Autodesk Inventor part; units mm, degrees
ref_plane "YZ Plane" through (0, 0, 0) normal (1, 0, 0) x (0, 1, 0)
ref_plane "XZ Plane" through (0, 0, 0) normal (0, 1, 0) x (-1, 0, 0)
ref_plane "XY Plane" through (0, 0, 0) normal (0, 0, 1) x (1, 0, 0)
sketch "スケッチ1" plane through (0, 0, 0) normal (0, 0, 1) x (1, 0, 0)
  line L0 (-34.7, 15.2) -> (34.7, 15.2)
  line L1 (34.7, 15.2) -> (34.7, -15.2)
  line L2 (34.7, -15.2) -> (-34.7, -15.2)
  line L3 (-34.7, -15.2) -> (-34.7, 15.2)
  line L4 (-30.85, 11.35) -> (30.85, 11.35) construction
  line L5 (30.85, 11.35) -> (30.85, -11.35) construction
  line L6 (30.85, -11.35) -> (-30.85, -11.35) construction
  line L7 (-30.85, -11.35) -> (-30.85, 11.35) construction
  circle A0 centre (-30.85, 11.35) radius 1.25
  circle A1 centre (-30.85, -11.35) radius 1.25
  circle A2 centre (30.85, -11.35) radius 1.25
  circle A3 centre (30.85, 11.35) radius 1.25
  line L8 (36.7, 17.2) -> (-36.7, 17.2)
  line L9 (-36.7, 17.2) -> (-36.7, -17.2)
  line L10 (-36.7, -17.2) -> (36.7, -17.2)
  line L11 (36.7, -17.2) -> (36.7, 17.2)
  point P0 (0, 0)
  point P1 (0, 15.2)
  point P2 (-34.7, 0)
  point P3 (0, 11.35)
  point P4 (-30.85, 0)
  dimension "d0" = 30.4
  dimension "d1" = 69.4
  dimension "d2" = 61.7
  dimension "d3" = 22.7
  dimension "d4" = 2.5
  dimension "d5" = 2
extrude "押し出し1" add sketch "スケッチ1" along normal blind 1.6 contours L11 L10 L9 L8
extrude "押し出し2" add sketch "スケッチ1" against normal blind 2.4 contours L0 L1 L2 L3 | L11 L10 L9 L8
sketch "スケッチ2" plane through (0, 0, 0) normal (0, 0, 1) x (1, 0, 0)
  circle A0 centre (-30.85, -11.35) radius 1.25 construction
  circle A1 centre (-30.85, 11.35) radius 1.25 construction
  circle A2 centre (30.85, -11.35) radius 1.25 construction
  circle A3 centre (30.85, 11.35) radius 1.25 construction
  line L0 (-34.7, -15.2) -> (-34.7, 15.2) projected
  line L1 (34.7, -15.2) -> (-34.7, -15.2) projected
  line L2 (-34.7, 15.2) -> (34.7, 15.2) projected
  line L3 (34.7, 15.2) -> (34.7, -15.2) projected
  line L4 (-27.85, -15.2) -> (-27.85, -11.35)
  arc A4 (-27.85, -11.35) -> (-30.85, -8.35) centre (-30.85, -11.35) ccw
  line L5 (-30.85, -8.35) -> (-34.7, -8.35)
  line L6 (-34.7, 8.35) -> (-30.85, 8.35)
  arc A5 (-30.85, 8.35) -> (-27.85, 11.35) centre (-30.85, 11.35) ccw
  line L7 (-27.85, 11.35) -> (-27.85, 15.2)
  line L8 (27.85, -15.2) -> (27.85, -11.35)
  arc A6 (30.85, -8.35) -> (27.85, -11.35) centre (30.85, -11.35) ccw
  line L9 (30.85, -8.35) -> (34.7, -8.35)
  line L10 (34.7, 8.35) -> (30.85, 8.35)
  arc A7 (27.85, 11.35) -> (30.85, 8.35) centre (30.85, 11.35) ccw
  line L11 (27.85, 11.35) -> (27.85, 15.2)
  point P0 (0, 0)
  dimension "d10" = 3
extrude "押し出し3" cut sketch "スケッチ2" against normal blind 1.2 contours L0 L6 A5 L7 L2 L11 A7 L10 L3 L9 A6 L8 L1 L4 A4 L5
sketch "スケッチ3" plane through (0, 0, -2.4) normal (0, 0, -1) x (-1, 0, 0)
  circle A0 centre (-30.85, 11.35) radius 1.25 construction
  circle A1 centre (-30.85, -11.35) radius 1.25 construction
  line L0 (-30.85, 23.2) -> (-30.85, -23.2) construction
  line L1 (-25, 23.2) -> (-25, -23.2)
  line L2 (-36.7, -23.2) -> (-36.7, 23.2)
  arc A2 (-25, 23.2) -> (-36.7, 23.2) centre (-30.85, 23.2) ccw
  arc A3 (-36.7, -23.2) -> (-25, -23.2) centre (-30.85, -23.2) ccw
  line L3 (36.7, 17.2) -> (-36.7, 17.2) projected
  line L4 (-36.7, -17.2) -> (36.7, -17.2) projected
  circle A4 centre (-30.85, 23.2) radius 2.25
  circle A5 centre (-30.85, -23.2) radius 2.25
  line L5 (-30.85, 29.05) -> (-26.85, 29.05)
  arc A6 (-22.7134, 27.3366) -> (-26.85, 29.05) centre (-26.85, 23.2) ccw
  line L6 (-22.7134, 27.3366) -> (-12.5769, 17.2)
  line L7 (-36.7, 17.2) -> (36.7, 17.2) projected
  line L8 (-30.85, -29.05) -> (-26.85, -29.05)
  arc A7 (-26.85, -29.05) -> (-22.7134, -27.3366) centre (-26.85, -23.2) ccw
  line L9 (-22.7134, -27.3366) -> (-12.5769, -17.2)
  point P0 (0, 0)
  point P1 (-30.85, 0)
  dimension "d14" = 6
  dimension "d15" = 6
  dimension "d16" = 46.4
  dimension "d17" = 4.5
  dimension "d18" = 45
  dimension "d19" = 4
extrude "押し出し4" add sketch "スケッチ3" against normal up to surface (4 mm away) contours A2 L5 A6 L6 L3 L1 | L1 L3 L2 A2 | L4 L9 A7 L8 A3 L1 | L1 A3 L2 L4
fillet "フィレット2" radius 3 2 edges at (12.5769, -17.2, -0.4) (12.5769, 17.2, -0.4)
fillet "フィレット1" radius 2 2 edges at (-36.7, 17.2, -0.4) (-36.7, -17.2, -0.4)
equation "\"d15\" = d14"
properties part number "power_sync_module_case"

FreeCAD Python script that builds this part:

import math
import FreeCAD as App
import Part
import Sketcher
from FreeCAD import Vector


def edges_at(feature, points):
    """Names of the edges that pass closest to the given points."""
    edges = feature.Shape.Edges
    near = lambda p: min(range(len(edges)), key=lambda i: edges[i].distToShape(Part.Vertex(*p))[0])
    return sorted({f"Edge{near(p) + 1}" for p in points})


def add_polygon(sketch, points):
    """Adds a closed chain of lines whose ends are joined by coincident constraints."""
    first, n = sketch.GeometryCount, len(points)
    for a, b in zip(points, points[1:] + points[:1]):
        sketch.addGeometry(Part.LineSegment(App.Vector(*a, 0), App.Vector(*b, 0)), False)
    for i in range(n):
        sketch.addConstraint(Sketcher.Constraint("Coincident", first + i, 2, first + (i + 1) % n, 1))

doc = App.newDocument("Part")
body = doc.addObject("PartDesign::Body", "Body")

# Sketch on XY plane
sketch1 = body.newObject("Sketcher::SketchObject", "Sketch")
sketch1.AttachmentSupport = (doc.getObject("XY_Plane"), [""])
sketch1.MapMode = "FlatFace"
add_polygon(sketch1, [(37, -17), (37, 17), (-37, 17), (-37, -17)])  # lines 0-3
add_polygon(sketch1, [(-35, -15), (-35, 15), (35, 15), (35, -15)])  # lines 4-7
sketch1.addConstraint(Sketcher.Constraint("Vertical", 0))
sketch1.addConstraint(Sketcher.Constraint("Horizontal", 1))
sketch1.addConstraint(Sketcher.Constraint("Vertical", 2))
sketch1.addConstraint(Sketcher.Constraint("Horizontal", 3))
sketch1.addConstraint(Sketcher.Constraint("Vertical", 4))
sketch1.addConstraint(Sketcher.Constraint("Horizontal", 5))
sketch1.addConstraint(Sketcher.Constraint("Vertical", 6))
sketch1.addConstraint(Sketcher.Constraint("Horizontal", 7))
sketch1.addConstraint(Sketcher.Constraint("Symmetric", 0, 2, 2, 2, -1, 1))
sketch1.addConstraint(Sketcher.Constraint("Symmetric", 4, 2, 6, 2, -1, 1))
sketch1.addConstraint(Sketcher.Constraint("DistanceX", 5, 1, 5, 2, 69.4))
sketch1.addConstraint(Sketcher.Constraint("DistanceY", 4, 1, 4, 2, 30.4))
sketch1.addConstraint(Sketcher.Constraint("DistanceX", 1, 2, 4, 2, 2.0))
sketch1.addConstraint(Sketcher.Constraint("DistanceY", 4, 2, 1, 2, 2.0))
pad1 = body.newObject("PartDesign::Pad", "Pad")
pad1.Profile = sketch1
pad1.Length = 1.6

# Sketch on XY plane
sketch2 = body.newObject("Sketcher::SketchObject", "Sketch001")
sketch2.AttachmentSupport = (doc.getObject("XY_Plane"), [""])
sketch2.MapMode = "FlatFace"
add_polygon(sketch2, [(36.7, -17.2), (36.7, 17.2), (-36.7, 17.2), (-36.7, -17.2)])  # lines 0-3
sketch2.addGeometry(Part.Circle(Vector(-30.9, -11.3, 0), Vector(0, 0, 1), 1.2), False)  # 4
sketch2.addGeometry(Part.Circle(Vector(30.9, -11.3, 0), Vector(0, 0, 1), 1.2), False)  # 5
sketch2.addGeometry(Part.Circle(Vector(-30.9, 11.3, 0), Vector(0, 0, 1), 1.2), False)  # 6
sketch2.addGeometry(Part.Circle(Vector(30.9, 11.3, 0), Vector(0, 0, 1), 1.2), False)  # 7
sketch2.addConstraint(Sketcher.Constraint("Vertical", 0))
sketch2.addConstraint(Sketcher.Constraint("Horizontal", 1))
sketch2.addConstraint(Sketcher.Constraint("Vertical", 2))
sketch2.addConstraint(Sketcher.Constraint("Horizontal", 3))
sketch2.addConstraint(Sketcher.Constraint("Equal", 4, 5))
sketch2.addConstraint(Sketcher.Constraint("Equal", 5, 6))
sketch2.addConstraint(Sketcher.Constraint("Equal", 6, 7))
sketch2.addConstraint(Sketcher.Constraint("Symmetric", 5, 3, 6, 3, -1, 1))
sketch2.addConstraint(Sketcher.Constraint("Symmetric", 4, 3, 7, 3, -1, 1))
sketch2.addConstraint(Sketcher.Constraint("Symmetric", 0, 2, 2, 2, -1, 1))
sketch2.addConstraint(Sketcher.Constraint("Symmetric", 4, 3, 5, 3, -2))
sketch2.addConstraint(Sketcher.Constraint("Diameter", 4, 2.5))
sketch2.addConstraint(Sketcher.Constraint("DistanceX", 4, 3, 5, 3, 61.7))
sketch2.addConstraint(Sketcher.Constraint("DistanceY", 4, 3, 6, 3, 22.7))
sketch2.addConstraint(Sketcher.Constraint("DistanceX", 1, 2, 1, 1, 73.4))
sketch2.addConstraint(Sketcher.Constraint("DistanceY", 0, 1, 0, 2, 34.4))
pad2 = body.newObject("PartDesign::Pad", "Pad001")
pad2.Profile = sketch2
pad2.Length = 2.4
pad2.Reversed = True

# Sketch on XY plane
sketch3 = body.newObject("Sketcher::SketchObject", "Sketch002")
sketch3.AttachmentSupport = (doc.getObject("XY_Plane"), [""])
sketch3.MapMode = "FlatFace"
sketch3.addGeometry(Part.LineSegment(Vector(-34.7, 8.3, 0), Vector(-34.7, -8.3, 0)), False)
sketch3.addGeometry(Part.LineSegment(Vector(-34.7, -8.3, 0), Vector(-30.9, -8.3, 0)), False)
sketch3.addGeometry(Part.ArcOfCircle(Part.Circle(Vector(-30.9, -11.3, 0), Vector(0, 0, 1), 3), math.radians(0), math.radians(90)), False)
sketch3.addGeometry(Part.LineSegment(Vector(-27.9, -11.3, 0), Vector(-27.9, -15.2, 0)), False)
sketch3.addGeometry(Part.LineSegment(Vector(-27.9, -15.2, 0), Vector(27.9, -15.2, 0)), False)
sketch3.addGeometry(Part.LineSegment(Vector(27.9, -15.2, 0), Vector(27.9, -11.3, 0)), False)
sketch3.addGeometry(Part.ArcOfCircle(Part.Circle(Vector(30.9, -11.3, 0), Vector(0, 0, 1), 3), math.radians(90), math.radians(180)), False)
sketch3.addGeometry(Part.LineSegment(Vector(30.9, -8.3, 0), Vector(34.7, -8.3, 0)), False)
sketch3.addGeometry(Part.LineSegment(Vector(34.7, -8.3, 0), Vector(34.7, 8.3, 0)), False)
sketch3.addGeometry(Part.LineSegment(Vector(34.7, 8.3, 0), Vector(30.9, 8.3, 0)), False)
sketch3.addGeometry(Part.ArcOfCircle(Part.Circle(Vector(30.9, 11.3, 0), Vector(0, 0, 1), 3), math.radians(180), math.radians(270)), False)
sketch3.addGeometry(Part.LineSegment(Vector(27.9, 11.3, 0), Vector(27.9, 15.2, 0)), False)
sketch3.addGeometry(Part.LineSegment(Vector(27.9, 15.2, 0), Vector(-27.9, 15.2, 0)), False)
sketch3.addGeometry(Part.LineSegment(Vector(-27.9, 15.2, 0), Vector(-27.9, 11.3, 0)), False)
sketch3.addGeometry(Part.ArcOfCircle(Part.Circle(Vector(-30.9, 11.3, 0), Vector(0, 0, 1), 3), math.radians(-90), math.radians(0)), False)
sketch3.addGeometry(Part.LineSegment(Vector(-30.9, 8.3, 0), Vector(-34.7, 8.3, 0)), False)
sketch3.addConstraint(Sketcher.Constraint("Coincident", 0, 2, 1, 1))
sketch3.addConstraint(Sketcher.Constraint("Tangent", 1, 2, 2, 2))
sketch3.addConstraint(Sketcher.Constraint("Tangent", 2, 1, 3, 1))
sketch3.addConstraint(Sketcher.Constraint("Coincident", 3, 2, 4, 1))
sketch3.addConstraint(Sketcher.Constraint("Coincident", 4, 2, 5, 1))
sketch3.addConstraint(Sketcher.Constraint("Tangent", 5, 2, 6, 2))
sketch3.addConstraint(Sketcher.Constraint("Tangent", 6, 1, 7, 1))
sketch3.addConstraint(Sketcher.Constraint("Coincident", 7, 2, 8, 1))
sketch3.addConstraint(Sketcher.Constraint("Coincident", 8, 2, 9, 1))
sketch3.addConstraint(Sketcher.Constraint("Tangent", 9, 2, 10, 2))
sketch3.addConstraint(Sketcher.Constraint("Tangent", 10, 1, 11, 1))
sketch3.addConstraint(Sketcher.Constraint("Coincident", 11, 2, 12, 1))
sketch3.addConstraint(Sketcher.Constraint("Coincident", 12, 2, 13, 1))
sketch3.addConstraint(Sketcher.Constraint("Tangent", 13, 2, 14, 2))
sketch3.addConstraint(Sketcher.Constraint("Tangent", 14, 1, 15, 1))
sketch3.addConstraint(Sketcher.Constraint("Coincident", 15, 2, 0, 1))
sketch3.addConstraint(Sketcher.Constraint("Vertical", 0))
sketch3.addConstraint(Sketcher.Constraint("Horizontal", 1))
sketch3.addConstraint(Sketcher.Constraint("Vertical", 3))
sketch3.addConstraint(Sketcher.Constraint("Horizontal", 4))
sketch3.addConstraint(Sketcher.Constraint("Vertical", 5))
sketch3.addConstraint(Sketcher.Constraint("Horizontal", 7))
sketch3.addConstraint(Sketcher.Constraint("Vertical", 8))
sketch3.addConstraint(Sketcher.Constraint("Horizontal", 9))
sketch3.addConstraint(Sketcher.Constraint("Vertical", 11))
sketch3.addConstraint(Sketcher.Constraint("Horizontal", 12))
sketch3.addConstraint(Sketcher.Constraint("Vertical", 13))
sketch3.addConstraint(Sketcher.Constraint("Horizontal", 15))
sketch3.addConstraint(Sketcher.Constraint("Equal", 2, 6))
sketch3.addConstraint(Sketcher.Constraint("Equal", 6, 10))
sketch3.addConstraint(Sketcher.Constraint("Equal", 10, 14))
sketch3.addConstraint(Sketcher.Constraint("Symmetric", 2, 3, 10, 3, -1, 1))
sketch3.addConstraint(Sketcher.Constraint("Symmetric", 6, 3, 14, 3, -1, 1))
sketch3.addConstraint(Sketcher.Constraint("Symmetric", 2, 3, 6, 3, -2))
sketch3.addConstraint(Sketcher.Constraint("Equal", 1, 7))
sketch3.addConstraint(Sketcher.Constraint("Equal", 15, 3))
sketch3.addConstraint(Sketcher.Constraint("Equal", 5, 11))
sketch3.addConstraint(Sketcher.Constraint("Radius", 2, 3.0))
sketch3.addConstraint(Sketcher.Constraint("DistanceX", 4, 1, 4, 2, 55.7))
sketch3.addConstraint(Sketcher.Constraint("DistanceY", 0, 2, 0, 1, 16.7))
sketch3.addConstraint(Sketcher.Constraint("DistanceX", 1, 1, 1, 2, 3.85))
pocket1 = body.newObject("PartDesign::Pocket", "Pocket")
pocket1.Profile = sketch3
pocket1.Length = 1.2

# Sketch on XY plane
sketch4 = body.newObject("Sketcher::SketchObject", "Sketch003")
sketch4.AttachmentSupport = (doc.getObject("XY_Plane"), [""])
sketch4.MapMode = "FlatFace"
sketch4.AttachmentOffset = App.Placement(Vector(0, 0, -2.4), App.Rotation())
sketch4.addGeometry(Part.LineSegment(Vector(26.9, 29.1, 0), Vector(30.9, 29.1, 0)), False)
sketch4.addGeometry(Part.ArcOfCircle(Part.Circle(Vector(30.9, 23.2, 0), Vector(0, 0, 1), 5.9), math.radians(0), math.radians(90)), False)
sketch4.addGeometry(Part.LineSegment(Vector(36.7, 23.2, 0), Vector(36.7, 17.2, 0)), False)
sketch4.addGeometry(Part.LineSegment(Vector(36.7, 17.2, 0), Vector(12.6, 17.2, 0)), False)
sketch4.addGeometry(Part.LineSegment(Vector(12.6, 17.2, 0), Vector(22.7, 27.3, 0)), False)
sketch4.addGeometry(Part.ArcOfCircle(Part.Circle(Vector(26.9, 23.2, 0), Vector(0, 0, 1), 5.9), math.radians(90), math.radians(135)), False)
sketch4.addGeometry(Part.Circle(Vector(30.9, 23.2, 0), Vector(0, 0, 1), 2.2), False)
sketch4.addGeometry(Part.LineSegment(Vector(12.6, -17.2, 0), Vector(36.7, -17.2, 0)), False)
sketch4.addGeometry(Part.LineSegment(Vector(36.7, -17.2, 0), Vector(36.7, -23.2, 0)), False)
sketch4.addGeometry(Part.ArcOfCircle(Part.Circle(Vector(30.9, -23.2, 0), Vector(0, 0, 1), 5.9), math.radians(-90), math.radians(0)), False)
sketch4.addGeometry(Part.LineSegment(Vector(30.9, -29.1, 0), Vector(26.9, -29.1, 0)), False)
sketch4.addGeometry(Part.ArcOfCircle(Part.Circle(Vector(26.9, -23.2, 0), Vector(0, 0, 1), 5.9), math.radians(-135), math.radians(-90)), False)
sketch4.addGeometry(Part.LineSegment(Vector(22.7, -27.3, 0), Vector(12.6, -17.2, 0)), False)
sketch4.addGeometry(Part.Circle(Vector(30.9, -23.2, 0), Vector(0, 0, 1), 2.2), False)
sketch4.addConstraint(Sketcher.Constraint("Tangent", 0, 2, 1, 2))
sketch4.addConstraint(Sketcher.Constraint("Tangent", 1, 1, 2, 1))
sketch4.addConstraint(Sketcher.Constraint("Coincident", 2, 2, 3, 1))
sketch4.addConstraint(Sketcher.Constraint("Coincident", 3, 2, 4, 1))
sketch4.addConstraint(Sketcher.Constraint("Tangent", 4, 2, 5, 2))
sketch4.addConstraint(Sketcher.Constraint("Tangent", 5, 1, 0, 1))
sketch4.addConstraint(Sketcher.Constraint("Coincident", 7, 2, 8, 1))
sketch4.addConstraint(Sketcher.Constraint("Tangent", 8, 2, 9, 2))
sketch4.addConstraint(Sketcher.Constraint("Tangent", 9, 1, 10, 1))
sketch4.addConstraint(Sketcher.Constraint("Tangent", 10, 2, 11, 2))
sketch4.addConstraint(Sketcher.Constraint("Tangent", 11, 1, 12, 1))
sketch4.addConstraint(Sketcher.Constraint("Coincident", 12, 2, 7, 1))
sketch4.addConstraint(Sketcher.Constraint("Horizontal", 0))
sketch4.addConstraint(Sketcher.Constraint("Vertical", 2))
sketch4.addConstraint(Sketcher.Constraint("Horizontal", 3))
sketch4.addConstraint(Sketcher.Constraint("Horizontal", 7))
sketch4.addConstraint(Sketcher.Constraint("Vertical", 8))
sketch4.addConstraint(Sketcher.Constraint("Horizontal", 10))
sketch4.addConstraint(Sketcher.Constraint("Coincident", 6, 3, 1, 3))
sketch4.addConstraint(Sketcher.Constraint("Coincident", 13, 3, 9, 3))
sketch4.addConstraint(Sketcher.Constraint("Equal", 1, 5))
sketch4.addConstraint(Sketcher.Constraint("Equal", 5, 9))
sketch4.addConstraint(Sketcher.Constraint("Equal", 9, 11))
sketch4.addConstraint(Sketcher.Constraint("Equal", 6, 13))
sketch4.addConstraint(Sketcher.Constraint("Symmetric", 1, 3, 9, 3, -1))
sketch4.addConstraint(Sketcher.Constraint("Symmetric", 4, 2, 11, 1, -1))
sketch4.addConstraint(Sketcher.Constraint("Perpendicular", 4, 12))
sketch4.addConstraint(Sketcher.Constraint("Vertical", 3, 2, 12, 2))
sketch4.addConstraint(Sketcher.Constraint("Diameter", 6, 4.5))
sketch4.addConstraint(Sketcher.Constraint("DistanceX", 0, 1, 0, 2, 4.0))
sketch4.addConstraint(Sketcher.Constraint("DistanceY", 2, 2, 2, 1, 6.0))
sketch4.addConstraint(Sketcher.Constraint("DistanceY", 9, 3, 1, 3, 46.4))
sketch4.addConstraint(Sketcher.Constraint("Radius", 1, 5.85))
sketch4.addConstraint(Sketcher.Constraint("DistanceX", -1, 1, 1, 1, 36.7))
pad3 = body.newObject("PartDesign::Pad", "Pad002")
pad3.Profile = sketch4
pad3.Length = 4
doc.recompute()

fillet = body.newObject("PartDesign::Fillet", "Fillet")
fillet.Base = (pad3, edges_at(pad3, [(12.577, -17.2, -0.4), (12.577, 17.2, -0.4)]))
fillet.Radius = 3
doc.recompute()

fillet2 = body.newObject("PartDesign::Fillet", "Fillet001")
fillet2.Base = (fillet, edges_at(fillet, [(-36.7, 17.2, -0.4), (-36.7, -17.2, -0.4)]))
fillet2.Radius = 2

doc.recompute()
